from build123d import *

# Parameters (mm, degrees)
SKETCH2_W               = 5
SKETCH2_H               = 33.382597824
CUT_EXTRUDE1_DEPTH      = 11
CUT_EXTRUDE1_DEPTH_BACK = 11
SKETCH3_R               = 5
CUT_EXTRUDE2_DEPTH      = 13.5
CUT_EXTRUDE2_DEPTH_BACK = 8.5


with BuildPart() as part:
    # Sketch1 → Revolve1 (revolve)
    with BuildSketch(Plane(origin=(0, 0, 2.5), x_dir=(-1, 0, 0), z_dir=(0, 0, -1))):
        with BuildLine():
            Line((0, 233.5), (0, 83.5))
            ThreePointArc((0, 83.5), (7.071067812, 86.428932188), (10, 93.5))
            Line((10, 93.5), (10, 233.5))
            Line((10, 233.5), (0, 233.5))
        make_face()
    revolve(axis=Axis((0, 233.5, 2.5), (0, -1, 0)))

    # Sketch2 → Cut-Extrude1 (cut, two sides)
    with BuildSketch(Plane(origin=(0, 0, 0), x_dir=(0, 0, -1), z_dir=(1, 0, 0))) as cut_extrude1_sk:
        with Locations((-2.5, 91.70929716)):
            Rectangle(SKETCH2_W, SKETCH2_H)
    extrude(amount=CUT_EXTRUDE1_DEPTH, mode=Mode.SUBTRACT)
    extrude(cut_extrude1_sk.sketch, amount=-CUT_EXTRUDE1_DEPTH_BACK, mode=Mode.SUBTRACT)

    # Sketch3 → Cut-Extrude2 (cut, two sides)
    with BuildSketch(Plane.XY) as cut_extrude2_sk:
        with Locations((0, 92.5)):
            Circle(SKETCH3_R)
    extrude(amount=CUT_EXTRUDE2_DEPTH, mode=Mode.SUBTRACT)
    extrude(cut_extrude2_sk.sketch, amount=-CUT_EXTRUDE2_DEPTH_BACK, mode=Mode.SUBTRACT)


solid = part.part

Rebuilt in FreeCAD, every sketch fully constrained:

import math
import FreeCAD as App
import Part
import Sketcher

V = App.Vector
Q = App.Units.Quantity

doc = App.newDocument("Part")
params = doc.addObject("Spreadsheet::Sheet", "Params")
for row, (alias, value) in enumerate([
    ("sketch1_radius", "10 mm"),
    ("sketch1_height", "150 mm"),
    ("revolution_angle", "360 deg"),
    ("sketch2_height", "5 mm"),
    ("sketch3_diameter", "10 mm"),
], start=1):
    params.set(f"A{row}", alias)
    params.set(f"B{row}", "=" + value)
    params.setAlias(f"B{row}", alias)

body = doc.addObject("PartDesign::Body", "Body")

sketch1 = body.newObject("Sketcher::SketchObject", "Sketch")
sketch1.AttachmentSupport = (doc.getObject("XY_Plane"), [""])
sketch1.MapMode = "FlatFace"
sketch1.AttachmentOffset = App.Placement(V(0, 0, 2.5), App.Rotation())
sketch1.addGeometry(Part.LineSegment(V(0, 234, 0), V(0, 84, 0)), False)
sketch1.addGeometry(Part.ArcOfCircle(Part.Circle(V(0, 94, 0), V(0, 0, 1), 10), math.radians(180), math.radians(270)), False)
sketch1.addGeometry(Part.LineSegment(V(-10, 94, 0), V(-10, 234, 0)), False)
sketch1.addGeometry(Part.LineSegment(V(-10, 234, 0), V(0, 234, 0)), False)
sketch1.addConstraint(Sketcher.Constraint("Coincident", 0, 2, 1, 2))
sketch1.addConstraint(Sketcher.Constraint("Tangent", 1, 1, 2, 1))
sketch1.addConstraint(Sketcher.Constraint("Coincident", 2, 2, 3, 1))
sketch1.addConstraint(Sketcher.Constraint("Coincident", 3, 2, 0, 1))
sketch1.addConstraint(Sketcher.Constraint("Vertical", 0))
sketch1.addConstraint(Sketcher.Constraint("Vertical", 2))
sketch1.addConstraint(Sketcher.Constraint("Horizontal", 3))
sketch1.addConstraint(Sketcher.Constraint("PointOnObject", 1, 3, -2))
sketch1.addConstraint(Sketcher.Constraint("PointOnObject", 0, 2, -2))
sketch1.addConstraint(Sketcher.Constraint("Radius", 1, Q("10 mm")))
sketch1.addConstraint(Sketcher.Constraint("DistanceY", 0, 2, 0, 1, Q("150 mm")))
sketch1.addConstraint(Sketcher.Constraint("DistanceY", -1, 1, 1, 3, Q("93.5 mm")))
sketch1.setExpression("Constraints[9]", "Params.sketch1_radius")
sketch1.setExpression("Constraints[10]", "Params.sketch1_height")
revolution = body.newObject("PartDesign::Revolution", "Revolution")
revolution.Profile = sketch1
revolution.ReferenceAxis = (sketch1, ["V_Axis"])
revolution.setExpression("Angle", "Params.revolution_angle")

sketch2 = body.newObject("Sketcher::SketchObject", "Sketch001")
sketch2.AttachmentSupport = (doc.getObject("YZ_Plane"), [""])
sketch2.MapMode = "FlatFace"
sketch2.addGeometry(Part.LineSegment(V(108, 5, 0), V(75, 5, 0)), False)
sketch2.addGeometry(Part.LineSegment(V(75, 5, 0), V(75, 0, 0)), False)
sketch2.addGeometry(Part.LineSegment(V(75, 0, 0), V(108, 0, 0)), False)
sketch2.addGeometry(Part.LineSegment(V(108, 0, 0), V(108, 5, 0)), False)
sketch2.addConstraint(Sketcher.Constraint("Coincident", 0, 2, 1, 1))
sketch2.addConstraint(Sketcher.Constraint("Coincident", 1, 2, 2, 1))
sketch2.addConstraint(Sketcher.Constraint("Coincident", 2, 2, 3, 1))
sketch2.addConstraint(Sketcher.Constraint("Coincident", 3, 2, 0, 1))
sketch2.addConstraint(Sketcher.Constraint("Horizontal", 0))
sketch2.addConstraint(Sketcher.Constraint("Vertical", 1))
sketch2.addConstraint(Sketcher.Constraint("Horizontal", 2))
sketch2.addConstraint(Sketcher.Constraint("Vertical", 3))
sketch2.addConstraint(Sketcher.Constraint("PointOnObject", 1, 2, -1))
sketch2.addConstraint(Sketcher.Constraint("DistanceY", 1, 2, 1, 1, Q("5 mm")))
sketch2.addConstraint(Sketcher.Constraint("DistanceX", -1, 1, 0, 2, Q("75.017998 mm")))
sketch2.addConstraint(Sketcher.Constraint("DistanceX", 0, 2, 0, 1, Q("33.382598 mm")))
sketch2.setExpression("Constraints[9]", "Params.sketch2_height")
pocket1 = body.newObject("PartDesign::Pocket", "Pocket")
pocket1.Profile = sketch2
pocket1.Type = "ThroughAll"
pocket1.Midplane = True

sketch3 = body.newObject("Sketcher::SketchObject", "Sketch002")
sketch3.AttachmentSupport = (doc.getObject("XY_Plane"), [""])
sketch3.MapMode = "FlatFace"
sketch3.addGeometry(Part.Circle(V(0, 92, 0), V(0, 0, 1), 5), False)
sketch3.addConstraint(Sketcher.Constraint("PointOnObject", 0, 3, -2))
sketch3.addConstraint(Sketcher.Constraint("Diameter", 0, Q("10 mm")))
sketch3.addConstraint(Sketcher.Constraint("DistanceY", -1, 1, 0, 3, Q("92.5 mm")))
sketch3.setExpression("Constraints[1]", "Params.sketch3_diameter")
pocket2 = body.newObject("PartDesign::Pocket", "Pocket001")
pocket2.Profile = sketch3
pocket2.Type = "ThroughAll"
pocket2.Midplane = True

doc.recompute()
